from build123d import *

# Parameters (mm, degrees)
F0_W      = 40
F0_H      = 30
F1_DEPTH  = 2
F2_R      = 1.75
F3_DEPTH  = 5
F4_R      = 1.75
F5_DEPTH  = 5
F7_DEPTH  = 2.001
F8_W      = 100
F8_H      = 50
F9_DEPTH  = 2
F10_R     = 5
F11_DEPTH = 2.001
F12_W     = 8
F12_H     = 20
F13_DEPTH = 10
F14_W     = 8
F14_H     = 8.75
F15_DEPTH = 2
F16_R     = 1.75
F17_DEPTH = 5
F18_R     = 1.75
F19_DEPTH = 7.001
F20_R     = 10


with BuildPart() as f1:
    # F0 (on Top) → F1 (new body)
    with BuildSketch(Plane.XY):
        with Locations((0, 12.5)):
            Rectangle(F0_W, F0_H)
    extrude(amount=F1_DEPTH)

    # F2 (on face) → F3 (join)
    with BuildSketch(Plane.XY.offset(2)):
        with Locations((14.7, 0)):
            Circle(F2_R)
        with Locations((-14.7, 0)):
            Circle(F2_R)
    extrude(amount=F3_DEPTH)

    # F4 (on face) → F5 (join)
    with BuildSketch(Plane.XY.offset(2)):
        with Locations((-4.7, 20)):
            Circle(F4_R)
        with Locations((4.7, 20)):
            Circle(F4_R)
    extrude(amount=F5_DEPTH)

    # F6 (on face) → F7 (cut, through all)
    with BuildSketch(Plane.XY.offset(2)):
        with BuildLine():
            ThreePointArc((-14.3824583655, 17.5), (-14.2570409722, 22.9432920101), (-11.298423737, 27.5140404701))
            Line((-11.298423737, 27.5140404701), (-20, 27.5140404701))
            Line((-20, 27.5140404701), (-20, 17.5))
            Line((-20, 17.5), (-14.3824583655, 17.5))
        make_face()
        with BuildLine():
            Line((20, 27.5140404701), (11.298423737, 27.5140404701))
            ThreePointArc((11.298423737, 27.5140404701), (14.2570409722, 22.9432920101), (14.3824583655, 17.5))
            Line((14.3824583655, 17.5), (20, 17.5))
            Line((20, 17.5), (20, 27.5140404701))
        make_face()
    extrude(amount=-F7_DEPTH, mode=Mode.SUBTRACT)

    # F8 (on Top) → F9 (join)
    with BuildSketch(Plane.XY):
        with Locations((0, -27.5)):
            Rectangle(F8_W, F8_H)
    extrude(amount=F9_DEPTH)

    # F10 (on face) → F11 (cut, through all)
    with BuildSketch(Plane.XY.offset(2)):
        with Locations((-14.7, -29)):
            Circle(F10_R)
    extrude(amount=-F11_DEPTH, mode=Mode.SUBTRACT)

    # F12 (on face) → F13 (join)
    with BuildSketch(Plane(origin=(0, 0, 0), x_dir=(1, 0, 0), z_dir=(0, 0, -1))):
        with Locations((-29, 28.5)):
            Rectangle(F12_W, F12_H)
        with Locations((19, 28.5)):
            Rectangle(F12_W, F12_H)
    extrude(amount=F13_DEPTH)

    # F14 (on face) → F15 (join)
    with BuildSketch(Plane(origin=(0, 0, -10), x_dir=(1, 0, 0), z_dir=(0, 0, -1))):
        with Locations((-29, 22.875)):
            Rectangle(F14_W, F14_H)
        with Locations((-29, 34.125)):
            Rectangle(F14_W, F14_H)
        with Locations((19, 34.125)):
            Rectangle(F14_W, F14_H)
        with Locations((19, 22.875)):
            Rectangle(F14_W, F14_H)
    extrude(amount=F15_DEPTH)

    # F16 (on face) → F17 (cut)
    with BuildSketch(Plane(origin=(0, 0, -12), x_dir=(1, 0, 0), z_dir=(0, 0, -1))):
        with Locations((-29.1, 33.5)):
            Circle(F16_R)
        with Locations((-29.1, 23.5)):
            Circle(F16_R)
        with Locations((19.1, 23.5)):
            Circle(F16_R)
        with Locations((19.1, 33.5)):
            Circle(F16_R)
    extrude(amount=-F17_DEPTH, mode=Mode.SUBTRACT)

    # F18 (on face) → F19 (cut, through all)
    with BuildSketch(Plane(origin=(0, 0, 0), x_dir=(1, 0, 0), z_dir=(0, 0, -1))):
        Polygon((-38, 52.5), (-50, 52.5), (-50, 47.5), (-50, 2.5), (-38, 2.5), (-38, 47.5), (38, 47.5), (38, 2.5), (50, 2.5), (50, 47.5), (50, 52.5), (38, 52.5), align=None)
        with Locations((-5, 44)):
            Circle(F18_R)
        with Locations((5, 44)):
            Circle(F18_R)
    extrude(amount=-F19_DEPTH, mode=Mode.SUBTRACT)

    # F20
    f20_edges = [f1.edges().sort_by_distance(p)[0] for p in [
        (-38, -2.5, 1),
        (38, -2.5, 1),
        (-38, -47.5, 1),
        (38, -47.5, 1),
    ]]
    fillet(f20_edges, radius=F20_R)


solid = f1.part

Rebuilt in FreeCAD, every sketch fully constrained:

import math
import FreeCAD as App
import Part
import Sketcher

V = App.Vector
Q = App.Units.Quantity


def edges_at(feature, points):
    """Names of the edges that pass closest to the given points."""
    edges = feature.Shape.Edges
    near = lambda p: min(range(len(edges)), key=lambda i: edges[i].distToShape(Part.Vertex(*p))[0])
    return sorted({f"Edge{near(p) + 1}" for p in points})


def add_polygon(sketch, points):
    """Adds a closed chain of lines whose ends are joined by coincident constraints."""
    first, n = sketch.GeometryCount, len(points)
    for a, b in zip(points, points[1:] + points[:1]):
        sketch.addGeometry(Part.LineSegment(App.Vector(*a, 0), App.Vector(*b, 0)), False)
    for i in range(n):
        sketch.addConstraint(Sketcher.Constraint("Coincident", first + i, 2, first + (i + 1) % n, 1))

doc = App.newDocument("Part")
body = doc.addObject("PartDesign::Body", "Body")

sketch1 = body.newObject("Sketcher::SketchObject", "Sketch")
sketch1.AttachmentSupport = (doc.getObject("XY_Plane"), [""])
sketch1.MapMode = "FlatFace"
add_polygon(sketch1, [(-20, 28), (-20, -2), (20, -2), (20, 28)])
sketch1.addConstraint(Sketcher.Constraint("Vertical", 0))
sketch1.addConstraint(Sketcher.Constraint("Horizontal", 1))
sketch1.addConstraint(Sketcher.Constraint("Vertical", 2))
sketch1.addConstraint(Sketcher.Constraint("Horizontal", 3))
sketch1.addConstraint(Sketcher.Constraint("DistanceX", 1, 1, 1, 2, Q("40 mm")))
sketch1.addConstraint(Sketcher.Constraint("DistanceY", 0, 2, 0, 1, Q("30 mm")))
sketch1.addConstraint(Sketcher.Constraint("DistanceX", 0, 2, -1, 1, Q("20 mm")))
sketch1.addConstraint(Sketcher.Constraint("DistanceY", 0, 2, -1, 1, Q("2.5 mm")))
pad1 = body.newObject("PartDesign::Pad", "Pad")
pad1.Profile = sketch1
pad1.Length = 2

sketch2 = body.newObject("Sketcher::SketchObject", "Sketch001")
sketch2.AttachmentSupport = (doc.getObject("XY_Plane"), [""])
sketch2.MapMode = "FlatFace"
sketch2.AttachmentOffset = App.Placement(V(0, 0, 2), App.Rotation())
sketch2.addGeometry(Part.Circle(V(14.7, 0, 0), V(0, 0, 1), 1.8), False)
sketch2.addGeometry(Part.Circle(V(-14.7, 0, 0), V(0, 0, 1), 1.8), False)
sketch2.addConstraint(Sketcher.Constraint("Equal", 0, 1))
sketch2.addConstraint(Sketcher.Constraint("Symmetric", 0, 3, 1, 3, -1, 1))
sketch2.addConstraint(Sketcher.Constraint("PointOnObject", 0, 3, -1))
sketch2.addConstraint(Sketcher.Constraint("Diameter", 0, Q("3.5 mm")))
sketch2.addConstraint(Sketcher.Constraint("DistanceX", -1, 1, 0, 3, Q("14.7 mm")))
pad2 = body.newObject("PartDesign::Pad", "Pad001")
pad2.Profile = sketch2
pad2.Length = 5

sketch3 = body.newObject("Sketcher::SketchObject", "Sketch002")
sketch3.AttachmentSupport = (doc.getObject("XY_Plane"), [""])
sketch3.MapMode = "FlatFace"
sketch3.AttachmentOffset = App.Placement(V(0, 0, 2), App.Rotation())
sketch3.addGeometry(Part.Circle(V(-4.7, 20, 0), V(0, 0, 1), 1.8), False)
sketch3.addGeometry(Part.Circle(V(4.7, 20, 0), V(0, 0, 1), 1.8), False)
sketch3.addConstraint(Sketcher.Constraint("Equal", 0, 1))
sketch3.addConstraint(Sketcher.Constraint("Symmetric", 0, 3, 1, 3, -2))
sketch3.addConstraint(Sketcher.Constraint("Diameter", 0, Q("3.5 mm")))
sketch3.addConstraint(Sketcher.Constraint("DistanceY", -1, 1, 0, 3, Q("20 mm")))
sketch3.addConstraint(Sketcher.Constraint("DistanceX", 0, 3, -1, 1, Q("4.7 mm")))
pad3 = body.newObject("PartDesign::Pad", "Pad002")
pad3.Profile = sketch3
pad3.Length = 5

sketch4 = body.newObject("Sketcher::SketchObject", "Sketch003")
sketch4.AttachmentSupport = (doc.getObject("XY_Plane"), [""])
sketch4.MapMode = "FlatFace"
sketch4.AttachmentOffset = App.Placement(V(0, 0, 2), App.Rotation())
sketch4.addGeometry(Part.ArcOfCircle(Part.Circle(V(-5, 20, 0), V(0, 0, 1), 10), math.radians(131), math.radians(194)), False)
sketch4.addGeometry(Part.LineSegment(V(-11, 28, 0), V(-20, 28, 0)), False)
sketch4.addGeometry(Part.LineSegment(V(-20, 28, 0), V(-20, 18, 0)), False)
sketch4.addGeometry(Part.LineSegment(V(-20, 18, 0), V(-14, 18, 0)), False)
sketch4.addGeometry(Part.LineSegment(V(20, 28, 0), V(11, 28, 0)), False)
sketch4.addGeometry(Part.ArcOfCircle(Part.Circle(V(5, 20, 0), V(0, 0, 1), 10), math.radians(-14), math.radians(49)), False)
sketch4.addGeometry(Part.LineSegment(V(14, 18, 0), V(20, 18, 0)), False)
sketch4.addGeometry(Part.LineSegment(V(20, 18, 0), V(20, 28, 0)), False)
sketch4.addConstraint(Sketcher.Constraint("Coincident", 0, 1, 1, 1))
sketch4.addConstraint(Sketcher.Constraint("Coincident", 1, 2, 2, 1))
sketch4.addConstraint(Sketcher.Constraint("Coincident", 2, 2, 3, 1))
sketch4.addConstraint(Sketcher.Constraint("Coincident", 3, 2, 0, 2))
sketch4.addConstraint(Sketcher.Constraint("Coincident", 4, 2, 5, 2))
sketch4.addConstraint(Sketcher.Constraint("Coincident", 5, 1, 6, 1))
sketch4.addConstraint(Sketcher.Constraint("Coincident", 6, 2, 7, 1))
sketch4.addConstraint(Sketcher.Constraint("Coincident", 7, 2, 4, 1))
sketch4.addConstraint(Sketcher.Constraint("Horizontal", 1))
sketch4.addConstraint(Sketcher.Constraint("Vertical", 2))
sketch4.addConstraint(Sketcher.Constraint("Horizontal", 3))
sketch4.addConstraint(Sketcher.Constraint("Horizontal", 4))
sketch4.addConstraint(Sketcher.Constraint("Horizontal", 6))
sketch4.addConstraint(Sketcher.Constraint("Vertical", 7))
sketch4.addConstraint(Sketcher.Constraint("Equal", 0, 5))
sketch4.addConstraint(Sketcher.Constraint("Symmetric", 0, 3, 5, 3, -2))
sketch4.addConstraint(Sketcher.Constraint("Symmetric", 2, 2, 6, 2, -2))
sketch4.addConstraint(Sketcher.Constraint("Horizontal", 1, 2, 4, 2))
sketch4.addConstraint(Sketcher.Constraint("Radius", 0, Q("10 mm")))
sketch4.addConstraint(Sketcher.Constraint("DistanceY", -1, 1, 0, 3, Q("20 mm")))
sketch4.addConstraint(Sketcher.Constraint("DistanceX", 1, 2, -1, 1, Q("20 mm")))
sketch4.addConstraint(Sketcher.Constraint("DistanceX", 0, 3, -1, 1, Q("4.7 mm")))
sketch4.addConstraint(Sketcher.Constraint("DistanceY", -1, 1, 2, 2, Q("17.5 mm")))
sketch4.addConstraint(Sketcher.Constraint("DistanceY", 2, 2, 2, 1, Q("10.01404 mm")))
pocket1 = body.newObject("PartDesign::Pocket", "Pocket")
pocket1.Profile = sketch4
pocket1.Type = "ThroughAll"

sketch5 = body.newObject("Sketcher::SketchObject", "Sketch004")
sketch5.AttachmentSupport = (doc.getObject("XY_Plane"), [""])
sketch5.MapMode = "FlatFace"
add_polygon(sketch5, [(-50, -2), (-50, -52), (50, -52), (50, -2)])
sketch5.addConstraint(Sketcher.Constraint("Vertical", 0))
sketch5.addConstraint(Sketcher.Constraint("Horizontal", 1))
sketch5.addConstraint(Sketcher.Constraint("Vertical", 2))
sketch5.addConstraint(Sketcher.Constraint("Horizontal", 3))
sketch5.addConstraint(Sketcher.Constraint("DistanceX", 1, 1, 1, 2, Q("100 mm")))
sketch5.addConstraint(Sketcher.Constraint("DistanceY", 0, 2, 0, 1, Q("50 mm")))
sketch5.addConstraint(Sketcher.Constraint("DistanceX", 0, 2, -1, 1, Q("50 mm")))
sketch5.addConstraint(Sketcher.Constraint("DistanceY", 0, 2, -1, 1, Q("52.5 mm")))
pad4 = body.newObject("PartDesign::Pad", "Pad003")
pad4.Profile = sketch5
pad4.Length = 2

sketch6 = body.newObject("Sketcher::SketchObject", "Sketch005")
sketch6.AttachmentSupport = (doc.getObject("XY_Plane"), [""])
sketch6.MapMode = "FlatFace"
sketch6.AttachmentOffset = App.Placement(V(0, 0, 2), App.Rotation())
sketch6.addGeometry(Part.Circle(V(-15, -29, 0), V(0, 0, 1), 5), False)
sketch6.addConstraint(Sketcher.Constraint("Diameter", 0, Q("10 mm")))
sketch6.addConstraint(Sketcher.Constraint("DistanceY", 0, 3, -1, 1, Q("29 mm")))
sketch6.addConstraint(Sketcher.Constraint("DistanceX", 0, 3, -1, 1, Q("14.7 mm")))
pocket2 = body.newObject("PartDesign::Pocket", "Pocket001")
pocket2.Profile = sketch6
pocket2.Type = "ThroughAll"

sketch7 = body.newObject("Sketcher::SketchObject", "Sketch006")
sketch7.AttachmentSupport = (doc.getObject("XY_Plane"), [""])
sketch7.MapMode = "FlatFace"
add_polygon(sketch7, [(-33, -38), (-33, -18), (-25, -18), (-25, -38)])
add_polygon(sketch7, [(15, -38), (15, -18), (23, -18), (23, -38)])
sketch7.addConstraint(Sketcher.Constraint("Vertical", 0))
sketch7.addConstraint(Sketcher.Constraint("Horizontal", 1))
sketch7.addConstraint(Sketcher.Constraint("Vertical", 2))
sketch7.addConstraint(Sketcher.Constraint("Horizontal", 3))
sketch7.addConstraint(Sketcher.Constraint("Vertical", 4))
sketch7.addConstraint(Sketcher.Constraint("Horizontal", 5))
sketch7.addConstraint(Sketcher.Constraint("Vertical", 6))
sketch7.addConstraint(Sketcher.Constraint("Horizontal", 7))
sketch7.addConstraint(Sketcher.Constraint("Horizontal", 1, 2, 4, 2))
sketch7.addConstraint(Sketcher.Constraint("Horizontal", 3, 2, 6, 2))
sketch7.addConstraint(Sketcher.Constraint("Equal", 3, 5))
sketch7.addConstraint(Sketcher.Constraint("DistanceX", 1, 1, 1, 2, Q("8 mm")))
sketch7.addConstraint(Sketcher.Constraint("DistanceY", 0, 1, 0, 2, Q("20 mm")))
sketch7.addConstraint(Sketcher.Constraint("DistanceX", 0, 2, -1, 1, Q("33 mm")))
sketch7.addConstraint(Sketcher.Constraint("DistanceX", -1, 1, 4, 2, Q("15 mm")))
sketch7.addConstraint(Sketcher.Constraint("DistanceY", 0, 2, -1, 1, Q("18.5 mm")))
pad5 = body.newObject("PartDesign::Pad", "Pad004")
pad5.Profile = sketch7
pad5.Length = 10
pad5.Reversed = True

sketch8 = body.newObject("Sketcher::SketchObject", "Sketch007")
sketch8.AttachmentSupport = (doc.getObject("XY_Plane"), [""])
sketch8.MapMode = "FlatFace"
sketch8.AttachmentOffset = App.Placement(V(0, 0, -10), App.Rotation())
add_polygon(sketch8, [(-33, -27), (-33, -18), (-25, -18), (-25, -27)])
add_polygon(sketch8, [(-33, -38), (-33, -30), (-25, -30), (-25, -38)])
add_polygon(sketch8, [(15, -38), (15, -30), (23, -30), (23, -38)])
add_polygon(sketch8, [(15, -27), (15, -18), (23, -18), (23, -27)])
sketch8.addConstraint(Sketcher.Constraint("Vertical", 0))
sketch8.addConstraint(Sketcher.Constraint("Horizontal", 1))
sketch8.addConstraint(Sketcher.Constraint("Vertical", 2))
sketch8.addConstraint(Sketcher.Constraint("Horizontal", 3))
sketch8.addConstraint(Sketcher.Constraint("Vertical", 4))
sketch8.addConstraint(Sketcher.Constraint("Horizontal", 5))
sketch8.addConstraint(Sketcher.Constraint("Vertical", 6))
sketch8.addConstraint(Sketcher.Constraint("Horizontal", 7))
sketch8.addConstraint(Sketcher.Constraint("Vertical", 8))
sketch8.addConstraint(Sketcher.Constraint("Horizontal", 9))
sketch8.addConstraint(Sketcher.Constraint("Vertical", 10))
sketch8.addConstraint(Sketcher.Constraint("Horizontal", 11))
sketch8.addConstraint(Sketcher.Constraint("Vertical", 12))
sketch8.addConstraint(Sketcher.Constraint("Horizontal", 13))
sketch8.addConstraint(Sketcher.Constraint("Vertical", 14))
sketch8.addConstraint(Sketcher.Constraint("Horizontal", 15))
sketch8.addConstraint(Sketcher.Constraint("Horizontal", 5, 2, 8, 2))
sketch8.addConstraint(Sketcher.Constraint("Horizontal", 7, 2, 10, 2))
sketch8.addConstraint(Sketcher.Constraint("Horizontal", 1, 2, 12, 2))
sketch8.addConstraint(Sketcher.Constraint("Horizontal", 3, 2, 14, 2))
sketch8.addConstraint(Sketcher.Constraint("Vertical", 3, 2, 4, 2))
sketch8.addConstraint(Sketcher.Constraint("Vertical", 2, 2, 5, 2))
sketch8.addConstraint(Sketcher.Constraint("Vertical", 11, 2, 12, 2))
sketch8.addConstraint(Sketcher.Constraint("Vertical", 10, 2, 13, 2))
sketch8.addConstraint(Sketcher.Constraint("Equal", 7, 9))
sketch8.addConstraint(Sketcher.Constraint("Equal", 2, 4))
sketch8.addConstraint(Sketcher.Constraint("DistanceX", 1, 1, 1, 2, Q("8 mm")))
sketch8.addConstraint(Sketcher.Constraint("DistanceX", 0, 2, -1, 1, Q("33 mm")))
sketch8.addConstraint(Sketcher.Constraint("DistanceX", -1, 1, 8, 2, Q("15 mm")))
sketch8.addConstraint(Sketcher.Constraint("DistanceY", 6, 2, 1, 2, Q("20 mm")))
sketch8.addConstraint(Sketcher.Constraint("DistanceY", 0, 1, 0, 2, Q("8.75 mm")))
sketch8.addConstraint(Sketcher.Constraint("DistanceY", 0, 2, -1, 1, Q("18.5 mm")))
pad6 = body.newObject("PartDesign::Pad", "Pad005")
pad6.Profile = sketch8
pad6.Length = 2
pad6.Reversed = True

sketch9 = body.newObject("Sketcher::SketchObject", "Sketch008")
sketch9.AttachmentSupport = (doc.getObject("XY_Plane"), [""])
sketch9.MapMode = "FlatFace"
sketch9.AttachmentOffset = App.Placement(V(0, 0, -12), App.Rotation())
sketch9.addGeometry(Part.Circle(V(-29.1, -33.5, 0), V(0, 0, 1), 1.8), False)
sketch9.addGeometry(Part.Circle(V(-29.1, -23.5, 0), V(0, 0, 1), 1.8), False)
sketch9.addGeometry(Part.Circle(V(19.1, -23.5, 0), V(0, 0, 1), 1.8), False)
sketch9.addGeometry(Part.Circle(V(19.1, -33.5, 0), V(0, 0, 1), 1.8), False)
sketch9.addConstraint(Sketcher.Constraint("Equal", 0, 1))
sketch9.addConstraint(Sketcher.Constraint("Equal", 1, 2))
sketch9.addConstraint(Sketcher.Constraint("Equal", 2, 3))
sketch9.addConstraint(Sketcher.Constraint("Horizontal", 1, 3, 2, 3))
sketch9.addConstraint(Sketcher.Constraint("Horizontal", 0, 3, 3, 3))
sketch9.addConstraint(Sketcher.Constraint("Vertical", 0, 3, 1, 3))
sketch9.addConstraint(Sketcher.Constraint("Vertical", 2, 3, 3, 3))
sketch9.addConstraint(Sketcher.Constraint("Diameter", 0, Q("3.5 mm")))
sketch9.addConstraint(Sketcher.Constraint("DistanceY", 0, 3, 1, 3, Q("10 mm")))
sketch9.addConstraint(Sketcher.Constraint("DistanceX", 0, 3, -1, 1, Q("29.1 mm")))
sketch9.addConstraint(Sketcher.Constraint("DistanceY", 0, 3, -1, 1, Q("33.5 mm")))
sketch9.addConstraint(Sketcher.Constraint("DistanceX", -1, 1, 2, 3, Q("19.1 mm")))
pocket3 = body.newObject("PartDesign::Pocket", "Pocket002")
pocket3.Profile = sketch9
pocket3.Length = 5
pocket3.Reversed = True

sketch10 = body.newObject("Sketcher::SketchObject", "Sketch009")
sketch10.AttachmentSupport = (doc.getObject("XY_Plane"), [""])
sketch10.MapMode = "FlatFace"
add_polygon(sketch10, [(-50, -52.5), (-50, -2.5), (-38, -2.5), (-38, -47.5), (38, -47.5), (38, -2.5), (50, -2.5), (50, -52.5)])
sketch10.addGeometry(Part.Circle(V(-5, -44, 0), V(0, 0, 1), 1.8), False)
sketch10.addGeometry(Part.Circle(V(5, -44, 0), V(0, 0, 1), 1.8), False)
sketch10.addConstraint(Sketcher.Constraint("Vertical", 0))
sketch10.addConstraint(Sketcher.Constraint("Horizontal", 1))
sketch10.addConstraint(Sketcher.Constraint("Vertical", 2))
sketch10.addConstraint(Sketcher.Constraint("Horizontal", 3))
sketch10.addConstraint(Sketcher.Constraint("Vertical", 4))
sketch10.addConstraint(Sketcher.Constraint("Horizontal", 5))
sketch10.addConstraint(Sketcher.Constraint("Vertical", 6))
sketch10.addConstraint(Sketcher.Constraint("Horizontal", 7))
sketch10.addConstraint(Sketcher.Constraint("Equal", 8, 9))
sketch10.addConstraint(Sketcher.Constraint("Symmetric", 8, 3, 9, 3, -2))
sketch10.addConstraint(Sketcher.Constraint("Symmetric", 1, 2, 4, 2, -2))
sketch10.addConstraint(Sketcher.Constraint("Equal", 1, 5))
sketch10.addConstraint(Sketcher.Constraint("Diameter", 8, Q("3.5 mm")))
sketch10.addConstraint(Sketcher.Constraint("DistanceX", 1, 1, 1, 2, Q("12 mm")))
sketch10.addConstraint(Sketcher.Constraint("DistanceX", 3, 1, 3, 2, Q("76 mm")))
sketch10.addConstraint(Sketcher.Constraint("DistanceY", 0, 1, 0, 2, Q("50 mm")))
sketch10.addConstraint(Sketcher.Constraint("DistanceY", 2, 2, 2, 1, Q("45 mm")))
sketch10.addConstraint(Sketcher.Constraint("DistanceX", 8, 3, -1, 1, Q("5 mm")))
sketch10.addConstraint(Sketcher.Constraint("DistanceY", 8, 3, -1, 1, Q("44 mm")))
sketch10.addConstraint(Sketcher.Constraint("DistanceY", 0, 2, -1, 1, Q("2.5 mm")))
pocket4 = body.newObject("PartDesign::Pocket", "Pocket003")
pocket4.Profile = sketch10
pocket4.Type = "ThroughAll"
pocket4.Reversed = True
doc.recompute()

fillet = body.newObject("PartDesign::Fillet", "Fillet")
fillet.Base = (pocket4, edges_at(pocket4, [
    (-38, -2.5, 1),
    (38, -2.5, 1),
    (-38, -47.5, 1),
    (38, -47.5, 1),
]))
fillet.Radius = 10

doc.recompute()
